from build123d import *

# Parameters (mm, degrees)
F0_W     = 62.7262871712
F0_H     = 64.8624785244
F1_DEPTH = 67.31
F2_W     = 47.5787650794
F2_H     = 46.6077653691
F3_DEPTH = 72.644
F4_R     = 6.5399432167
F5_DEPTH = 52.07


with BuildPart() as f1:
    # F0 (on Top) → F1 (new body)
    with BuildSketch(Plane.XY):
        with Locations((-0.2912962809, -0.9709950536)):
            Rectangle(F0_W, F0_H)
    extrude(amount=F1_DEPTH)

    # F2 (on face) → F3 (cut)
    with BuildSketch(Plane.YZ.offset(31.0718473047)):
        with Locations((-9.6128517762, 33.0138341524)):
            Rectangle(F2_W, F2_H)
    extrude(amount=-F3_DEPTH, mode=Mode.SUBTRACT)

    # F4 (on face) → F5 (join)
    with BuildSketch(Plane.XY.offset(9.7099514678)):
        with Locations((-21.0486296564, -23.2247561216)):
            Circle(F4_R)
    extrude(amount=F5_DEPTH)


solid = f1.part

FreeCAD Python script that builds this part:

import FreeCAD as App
import Part
import Sketcher
from FreeCAD import Vector
Q = App.Units.Quantity

doc = App.newDocument("Part")
body = doc.addObject("PartDesign::Body", "Body")

sketch1 = body.newObject("Sketcher::SketchObject", "Sketch")
sketch1.AttachmentSupport = (doc.getObject("XY_Plane"), [""])
sketch1.MapMode = "FlatFace"
sketch1.addGeometry(Part.LineSegment(Vector(-31.65444, 31.460244, 0), Vector(-31.65444, -33.402234, 0)), False)
sketch1.addGeometry(Part.LineSegment(Vector(-31.65444, -33.402234, 0), Vector(31.071847, -33.402234, 0)), False)
sketch1.addGeometry(Part.LineSegment(Vector(31.071847, -33.402234, 0), Vector(31.071847, 31.460244, 0)), False)
sketch1.addGeometry(Part.LineSegment(Vector(31.071847, 31.460244, 0), Vector(-31.65444, 31.460244, 0)), False)
sketch1.addConstraint(Sketcher.Constraint("Coincident", 0, 2, 1, 1))
sketch1.addConstraint(Sketcher.Constraint("Coincident", 1, 2, 2, 1))
sketch1.addConstraint(Sketcher.Constraint("Coincident", 2, 2, 3, 1))
sketch1.addConstraint(Sketcher.Constraint("Coincident", 3, 2, 0, 1))
sketch1.addConstraint(Sketcher.Constraint("Vertical", 0))
sketch1.addConstraint(Sketcher.Constraint("Horizontal", 1))
sketch1.addConstraint(Sketcher.Constraint("Vertical", 2))
sketch1.addConstraint(Sketcher.Constraint("Horizontal", 3))
sketch1.addConstraint(Sketcher.Constraint("DistanceY", 0, 2, 0, 1, Q("64.862479 mm")))
sketch1.addConstraint(Sketcher.Constraint("DistanceX", 1, 1, 1, 2, Q("62.726287 mm")))
sketch1.addConstraint(Sketcher.Constraint("DistanceX", 0, 2, -1, 1, Q("31.65444 mm")))
sketch1.addConstraint(Sketcher.Constraint("DistanceY", 0, 2, -1, 1, Q("33.402234 mm")))
pad1 = body.newObject("PartDesign::Pad", "Pad")
pad1.Profile = sketch1
pad1.Length = Q("2.65 in")

sketch2 = body.newObject("Sketcher::SketchObject", "Sketch001")
sketch2.AttachmentSupport = (doc.getObject("YZ_Plane"), [""])
sketch2.MapMode = "FlatFace"
sketch2.AttachmentOffset = App.Placement(Vector(0, 0, 31.071847), App.Rotation())
sketch2.addGeometry(Part.LineSegment(Vector(-33.402234, 56.317717, 0), Vector(-33.402234, 9.709951, 0)), False)
sketch2.addGeometry(Part.LineSegment(Vector(-33.402234, 9.709951, 0), Vector(14.176531, 9.709951, 0)), False)
sketch2.addGeometry(Part.LineSegment(Vector(14.176531, 9.709951, 0), Vector(14.176531, 56.317717, 0)), False)
sketch2.addGeometry(Part.LineSegment(Vector(14.176531, 56.317717, 0), Vector(-33.402234, 56.317717, 0)), False)
sketch2.addConstraint(Sketcher.Constraint("Coincident", 0, 2, 1, 1))
sketch2.addConstraint(Sketcher.Constraint("Coincident", 1, 2, 2, 1))
sketch2.addConstraint(Sketcher.Constraint("Coincident", 2, 2, 3, 1))
sketch2.addConstraint(Sketcher.Constraint("Coincident", 3, 2, 0, 1))
sketch2.addConstraint(Sketcher.Constraint("Vertical", 0))
sketch2.addConstraint(Sketcher.Constraint("Horizontal", 1))
sketch2.addConstraint(Sketcher.Constraint("Vertical", 2))
sketch2.addConstraint(Sketcher.Constraint("Horizontal", 3))
sketch2.addConstraint(Sketcher.Constraint("DistanceX", 1, 1, 1, 2, Q("47.578765 mm")))
sketch2.addConstraint(Sketcher.Constraint("DistanceY", 0, 2, 0, 1, Q("46.607765 mm")))
sketch2.addConstraint(Sketcher.Constraint("DistanceY", -1, 1, 0, 2, Q("9.709951 mm")))
sketch2.addConstraint(Sketcher.Constraint("DistanceX", -1, 1, 1, 2, Q("14.176531 mm")))
pocket1 = body.newObject("PartDesign::Pocket", "Pocket")
pocket1.Profile = sketch2
pocket1.Length = Q("2.86 in")

sketch3 = body.newObject("Sketcher::SketchObject", "Sketch002")
sketch3.AttachmentSupport = (doc.getObject("XY_Plane"), [""])
sketch3.MapMode = "FlatFace"
sketch3.AttachmentOffset = App.Placement(Vector(0, 0, 9.709951), App.Rotation())
sketch3.addGeometry(Part.Circle(Vector(-21.04863, -23.224756, 0), Vector(0, 0, 1), 6.539943), False)
sketch3.addConstraint(Sketcher.Constraint("Diameter", 0, Q("13.079886 mm")))
sketch3.addConstraint(Sketcher.Constraint("DistanceX", 0, 3, -1, 1, Q("21.04863 mm")))
sketch3.addConstraint(Sketcher.Constraint("DistanceY", 0, 3, -1, 1, Q("23.224756 mm")))
pad2 = body.newObject("PartDesign::Pad", "Pad001")
pad2.Profile = sketch3
pad2.Length = Q("2.05 in")

doc.recompute()
